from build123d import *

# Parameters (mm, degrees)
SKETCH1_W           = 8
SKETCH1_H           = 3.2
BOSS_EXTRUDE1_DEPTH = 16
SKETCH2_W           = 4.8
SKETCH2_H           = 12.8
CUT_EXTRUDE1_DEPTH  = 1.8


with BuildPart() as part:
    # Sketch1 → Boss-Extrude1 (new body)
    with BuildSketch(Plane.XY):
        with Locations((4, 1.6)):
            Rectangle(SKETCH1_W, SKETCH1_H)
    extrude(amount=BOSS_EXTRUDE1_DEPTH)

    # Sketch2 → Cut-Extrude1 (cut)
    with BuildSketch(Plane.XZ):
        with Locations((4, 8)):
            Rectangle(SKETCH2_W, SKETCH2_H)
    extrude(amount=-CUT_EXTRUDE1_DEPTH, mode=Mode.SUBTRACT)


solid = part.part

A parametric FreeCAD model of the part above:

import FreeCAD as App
import Part
import Sketcher

V = App.Vector
Q = App.Units.Quantity


def add_polygon(sketch, points):
    """Adds a closed chain of lines whose ends are joined by coincident constraints."""
    first, n = sketch.GeometryCount, len(points)
    for a, b in zip(points, points[1:] + points[:1]):
        sketch.addGeometry(Part.LineSegment(App.Vector(*a, 0), App.Vector(*b, 0)), False)
    for i in range(n):
        sketch.addConstraint(Sketcher.Constraint("Coincident", first + i, 2, first + (i + 1) % n, 1))

doc = App.newDocument("Part")
params = doc.addObject("Spreadsheet::Sheet", "Params")
for row, (alias, value) in enumerate([
    ("sketch1_width", "8 mm"),
    ("sketch1_height", "3.2 mm"),
    ("pad1_length", "16 mm"),
    ("sketch2_width", "4.8 mm"),
    ("sketch2_height", "12.8 mm"),
    ("pocket1_length", "1.8 mm"),
], start=1):
    params.set(f"A{row}", alias)
    params.set(f"B{row}", "=" + value)
    params.setAlias(f"B{row}", alias)

body = doc.addObject("PartDesign::Body", "Body")

# Sketch on XY plane
sketch1 = body.newObject("Sketcher::SketchObject", "Sketch")
sketch1.AttachmentSupport = (doc.getObject("XY_Plane"), [""])
sketch1.MapMode = "FlatFace"
add_polygon(sketch1, [(0, 3.2), (0, 0), (8, 0), (8, 3.2)])  # lines 0-3
sketch1.addConstraint([
    Sketcher.Constraint("Vertical", 0),
    Sketcher.Constraint("Horizontal", 1),
    Sketcher.Constraint("Vertical", 2),
    Sketcher.Constraint("Horizontal", 3),
    Sketcher.Constraint("Coincident", 0, 2, -1, 1),
    Sketcher.Constraint("DistanceX", 1, 1, 1, 2, Q("8 mm")),
    Sketcher.Constraint("DistanceY", 0, 2, 0, 1, Q("3.2 mm")),
])
sketch1.setExpression("Constraints[9]", "Params.sketch1_width")
sketch1.setExpression("Constraints[10]", "Params.sketch1_height")
pad1 = body.newObject("PartDesign::Pad", "Pad")
pad1.Profile = sketch1
pad1.setExpression("Length", "Params.pad1_length")

# Sketch on XZ plane
sketch2 = body.newObject("Sketcher::SketchObject", "Sketch001")
sketch2.AttachmentSupport = (doc.getObject("XZ_Plane"), [""])
sketch2.MapMode = "FlatFace"
add_polygon(sketch2, [(1.6, 14.4), (1.6, 1.6), (6.4, 1.6), (6.4, 14.4)])  # lines 0-3
sketch2.addConstraint([
    Sketcher.Constraint("Vertical", 0),
    Sketcher.Constraint("Horizontal", 1),
    Sketcher.Constraint("Vertical", 2),
    Sketcher.Constraint("Horizontal", 3),
    Sketcher.Constraint("DistanceX", 1, 1, 1, 2, Q("4.8 mm")),
    Sketcher.Constraint("DistanceY", 0, 2, 0, 1, Q("12.8 mm")),
    Sketcher.Constraint("DistanceX", -1, 1, 0, 2, Q("1.6 mm")),
    Sketcher.Constraint("DistanceY", -1, 1, 0, 2, Q("1.6 mm")),
])
sketch2.setExpression("Constraints[8]", "Params.sketch2_width")
sketch2.setExpression("Constraints[9]", "Params.sketch2_height")
pocket1 = body.newObject("PartDesign::Pocket", "Pocket")
pocket1.Profile = sketch2
pocket1.setExpression("Length", "Params.pocket1_length")

doc.recompute()
